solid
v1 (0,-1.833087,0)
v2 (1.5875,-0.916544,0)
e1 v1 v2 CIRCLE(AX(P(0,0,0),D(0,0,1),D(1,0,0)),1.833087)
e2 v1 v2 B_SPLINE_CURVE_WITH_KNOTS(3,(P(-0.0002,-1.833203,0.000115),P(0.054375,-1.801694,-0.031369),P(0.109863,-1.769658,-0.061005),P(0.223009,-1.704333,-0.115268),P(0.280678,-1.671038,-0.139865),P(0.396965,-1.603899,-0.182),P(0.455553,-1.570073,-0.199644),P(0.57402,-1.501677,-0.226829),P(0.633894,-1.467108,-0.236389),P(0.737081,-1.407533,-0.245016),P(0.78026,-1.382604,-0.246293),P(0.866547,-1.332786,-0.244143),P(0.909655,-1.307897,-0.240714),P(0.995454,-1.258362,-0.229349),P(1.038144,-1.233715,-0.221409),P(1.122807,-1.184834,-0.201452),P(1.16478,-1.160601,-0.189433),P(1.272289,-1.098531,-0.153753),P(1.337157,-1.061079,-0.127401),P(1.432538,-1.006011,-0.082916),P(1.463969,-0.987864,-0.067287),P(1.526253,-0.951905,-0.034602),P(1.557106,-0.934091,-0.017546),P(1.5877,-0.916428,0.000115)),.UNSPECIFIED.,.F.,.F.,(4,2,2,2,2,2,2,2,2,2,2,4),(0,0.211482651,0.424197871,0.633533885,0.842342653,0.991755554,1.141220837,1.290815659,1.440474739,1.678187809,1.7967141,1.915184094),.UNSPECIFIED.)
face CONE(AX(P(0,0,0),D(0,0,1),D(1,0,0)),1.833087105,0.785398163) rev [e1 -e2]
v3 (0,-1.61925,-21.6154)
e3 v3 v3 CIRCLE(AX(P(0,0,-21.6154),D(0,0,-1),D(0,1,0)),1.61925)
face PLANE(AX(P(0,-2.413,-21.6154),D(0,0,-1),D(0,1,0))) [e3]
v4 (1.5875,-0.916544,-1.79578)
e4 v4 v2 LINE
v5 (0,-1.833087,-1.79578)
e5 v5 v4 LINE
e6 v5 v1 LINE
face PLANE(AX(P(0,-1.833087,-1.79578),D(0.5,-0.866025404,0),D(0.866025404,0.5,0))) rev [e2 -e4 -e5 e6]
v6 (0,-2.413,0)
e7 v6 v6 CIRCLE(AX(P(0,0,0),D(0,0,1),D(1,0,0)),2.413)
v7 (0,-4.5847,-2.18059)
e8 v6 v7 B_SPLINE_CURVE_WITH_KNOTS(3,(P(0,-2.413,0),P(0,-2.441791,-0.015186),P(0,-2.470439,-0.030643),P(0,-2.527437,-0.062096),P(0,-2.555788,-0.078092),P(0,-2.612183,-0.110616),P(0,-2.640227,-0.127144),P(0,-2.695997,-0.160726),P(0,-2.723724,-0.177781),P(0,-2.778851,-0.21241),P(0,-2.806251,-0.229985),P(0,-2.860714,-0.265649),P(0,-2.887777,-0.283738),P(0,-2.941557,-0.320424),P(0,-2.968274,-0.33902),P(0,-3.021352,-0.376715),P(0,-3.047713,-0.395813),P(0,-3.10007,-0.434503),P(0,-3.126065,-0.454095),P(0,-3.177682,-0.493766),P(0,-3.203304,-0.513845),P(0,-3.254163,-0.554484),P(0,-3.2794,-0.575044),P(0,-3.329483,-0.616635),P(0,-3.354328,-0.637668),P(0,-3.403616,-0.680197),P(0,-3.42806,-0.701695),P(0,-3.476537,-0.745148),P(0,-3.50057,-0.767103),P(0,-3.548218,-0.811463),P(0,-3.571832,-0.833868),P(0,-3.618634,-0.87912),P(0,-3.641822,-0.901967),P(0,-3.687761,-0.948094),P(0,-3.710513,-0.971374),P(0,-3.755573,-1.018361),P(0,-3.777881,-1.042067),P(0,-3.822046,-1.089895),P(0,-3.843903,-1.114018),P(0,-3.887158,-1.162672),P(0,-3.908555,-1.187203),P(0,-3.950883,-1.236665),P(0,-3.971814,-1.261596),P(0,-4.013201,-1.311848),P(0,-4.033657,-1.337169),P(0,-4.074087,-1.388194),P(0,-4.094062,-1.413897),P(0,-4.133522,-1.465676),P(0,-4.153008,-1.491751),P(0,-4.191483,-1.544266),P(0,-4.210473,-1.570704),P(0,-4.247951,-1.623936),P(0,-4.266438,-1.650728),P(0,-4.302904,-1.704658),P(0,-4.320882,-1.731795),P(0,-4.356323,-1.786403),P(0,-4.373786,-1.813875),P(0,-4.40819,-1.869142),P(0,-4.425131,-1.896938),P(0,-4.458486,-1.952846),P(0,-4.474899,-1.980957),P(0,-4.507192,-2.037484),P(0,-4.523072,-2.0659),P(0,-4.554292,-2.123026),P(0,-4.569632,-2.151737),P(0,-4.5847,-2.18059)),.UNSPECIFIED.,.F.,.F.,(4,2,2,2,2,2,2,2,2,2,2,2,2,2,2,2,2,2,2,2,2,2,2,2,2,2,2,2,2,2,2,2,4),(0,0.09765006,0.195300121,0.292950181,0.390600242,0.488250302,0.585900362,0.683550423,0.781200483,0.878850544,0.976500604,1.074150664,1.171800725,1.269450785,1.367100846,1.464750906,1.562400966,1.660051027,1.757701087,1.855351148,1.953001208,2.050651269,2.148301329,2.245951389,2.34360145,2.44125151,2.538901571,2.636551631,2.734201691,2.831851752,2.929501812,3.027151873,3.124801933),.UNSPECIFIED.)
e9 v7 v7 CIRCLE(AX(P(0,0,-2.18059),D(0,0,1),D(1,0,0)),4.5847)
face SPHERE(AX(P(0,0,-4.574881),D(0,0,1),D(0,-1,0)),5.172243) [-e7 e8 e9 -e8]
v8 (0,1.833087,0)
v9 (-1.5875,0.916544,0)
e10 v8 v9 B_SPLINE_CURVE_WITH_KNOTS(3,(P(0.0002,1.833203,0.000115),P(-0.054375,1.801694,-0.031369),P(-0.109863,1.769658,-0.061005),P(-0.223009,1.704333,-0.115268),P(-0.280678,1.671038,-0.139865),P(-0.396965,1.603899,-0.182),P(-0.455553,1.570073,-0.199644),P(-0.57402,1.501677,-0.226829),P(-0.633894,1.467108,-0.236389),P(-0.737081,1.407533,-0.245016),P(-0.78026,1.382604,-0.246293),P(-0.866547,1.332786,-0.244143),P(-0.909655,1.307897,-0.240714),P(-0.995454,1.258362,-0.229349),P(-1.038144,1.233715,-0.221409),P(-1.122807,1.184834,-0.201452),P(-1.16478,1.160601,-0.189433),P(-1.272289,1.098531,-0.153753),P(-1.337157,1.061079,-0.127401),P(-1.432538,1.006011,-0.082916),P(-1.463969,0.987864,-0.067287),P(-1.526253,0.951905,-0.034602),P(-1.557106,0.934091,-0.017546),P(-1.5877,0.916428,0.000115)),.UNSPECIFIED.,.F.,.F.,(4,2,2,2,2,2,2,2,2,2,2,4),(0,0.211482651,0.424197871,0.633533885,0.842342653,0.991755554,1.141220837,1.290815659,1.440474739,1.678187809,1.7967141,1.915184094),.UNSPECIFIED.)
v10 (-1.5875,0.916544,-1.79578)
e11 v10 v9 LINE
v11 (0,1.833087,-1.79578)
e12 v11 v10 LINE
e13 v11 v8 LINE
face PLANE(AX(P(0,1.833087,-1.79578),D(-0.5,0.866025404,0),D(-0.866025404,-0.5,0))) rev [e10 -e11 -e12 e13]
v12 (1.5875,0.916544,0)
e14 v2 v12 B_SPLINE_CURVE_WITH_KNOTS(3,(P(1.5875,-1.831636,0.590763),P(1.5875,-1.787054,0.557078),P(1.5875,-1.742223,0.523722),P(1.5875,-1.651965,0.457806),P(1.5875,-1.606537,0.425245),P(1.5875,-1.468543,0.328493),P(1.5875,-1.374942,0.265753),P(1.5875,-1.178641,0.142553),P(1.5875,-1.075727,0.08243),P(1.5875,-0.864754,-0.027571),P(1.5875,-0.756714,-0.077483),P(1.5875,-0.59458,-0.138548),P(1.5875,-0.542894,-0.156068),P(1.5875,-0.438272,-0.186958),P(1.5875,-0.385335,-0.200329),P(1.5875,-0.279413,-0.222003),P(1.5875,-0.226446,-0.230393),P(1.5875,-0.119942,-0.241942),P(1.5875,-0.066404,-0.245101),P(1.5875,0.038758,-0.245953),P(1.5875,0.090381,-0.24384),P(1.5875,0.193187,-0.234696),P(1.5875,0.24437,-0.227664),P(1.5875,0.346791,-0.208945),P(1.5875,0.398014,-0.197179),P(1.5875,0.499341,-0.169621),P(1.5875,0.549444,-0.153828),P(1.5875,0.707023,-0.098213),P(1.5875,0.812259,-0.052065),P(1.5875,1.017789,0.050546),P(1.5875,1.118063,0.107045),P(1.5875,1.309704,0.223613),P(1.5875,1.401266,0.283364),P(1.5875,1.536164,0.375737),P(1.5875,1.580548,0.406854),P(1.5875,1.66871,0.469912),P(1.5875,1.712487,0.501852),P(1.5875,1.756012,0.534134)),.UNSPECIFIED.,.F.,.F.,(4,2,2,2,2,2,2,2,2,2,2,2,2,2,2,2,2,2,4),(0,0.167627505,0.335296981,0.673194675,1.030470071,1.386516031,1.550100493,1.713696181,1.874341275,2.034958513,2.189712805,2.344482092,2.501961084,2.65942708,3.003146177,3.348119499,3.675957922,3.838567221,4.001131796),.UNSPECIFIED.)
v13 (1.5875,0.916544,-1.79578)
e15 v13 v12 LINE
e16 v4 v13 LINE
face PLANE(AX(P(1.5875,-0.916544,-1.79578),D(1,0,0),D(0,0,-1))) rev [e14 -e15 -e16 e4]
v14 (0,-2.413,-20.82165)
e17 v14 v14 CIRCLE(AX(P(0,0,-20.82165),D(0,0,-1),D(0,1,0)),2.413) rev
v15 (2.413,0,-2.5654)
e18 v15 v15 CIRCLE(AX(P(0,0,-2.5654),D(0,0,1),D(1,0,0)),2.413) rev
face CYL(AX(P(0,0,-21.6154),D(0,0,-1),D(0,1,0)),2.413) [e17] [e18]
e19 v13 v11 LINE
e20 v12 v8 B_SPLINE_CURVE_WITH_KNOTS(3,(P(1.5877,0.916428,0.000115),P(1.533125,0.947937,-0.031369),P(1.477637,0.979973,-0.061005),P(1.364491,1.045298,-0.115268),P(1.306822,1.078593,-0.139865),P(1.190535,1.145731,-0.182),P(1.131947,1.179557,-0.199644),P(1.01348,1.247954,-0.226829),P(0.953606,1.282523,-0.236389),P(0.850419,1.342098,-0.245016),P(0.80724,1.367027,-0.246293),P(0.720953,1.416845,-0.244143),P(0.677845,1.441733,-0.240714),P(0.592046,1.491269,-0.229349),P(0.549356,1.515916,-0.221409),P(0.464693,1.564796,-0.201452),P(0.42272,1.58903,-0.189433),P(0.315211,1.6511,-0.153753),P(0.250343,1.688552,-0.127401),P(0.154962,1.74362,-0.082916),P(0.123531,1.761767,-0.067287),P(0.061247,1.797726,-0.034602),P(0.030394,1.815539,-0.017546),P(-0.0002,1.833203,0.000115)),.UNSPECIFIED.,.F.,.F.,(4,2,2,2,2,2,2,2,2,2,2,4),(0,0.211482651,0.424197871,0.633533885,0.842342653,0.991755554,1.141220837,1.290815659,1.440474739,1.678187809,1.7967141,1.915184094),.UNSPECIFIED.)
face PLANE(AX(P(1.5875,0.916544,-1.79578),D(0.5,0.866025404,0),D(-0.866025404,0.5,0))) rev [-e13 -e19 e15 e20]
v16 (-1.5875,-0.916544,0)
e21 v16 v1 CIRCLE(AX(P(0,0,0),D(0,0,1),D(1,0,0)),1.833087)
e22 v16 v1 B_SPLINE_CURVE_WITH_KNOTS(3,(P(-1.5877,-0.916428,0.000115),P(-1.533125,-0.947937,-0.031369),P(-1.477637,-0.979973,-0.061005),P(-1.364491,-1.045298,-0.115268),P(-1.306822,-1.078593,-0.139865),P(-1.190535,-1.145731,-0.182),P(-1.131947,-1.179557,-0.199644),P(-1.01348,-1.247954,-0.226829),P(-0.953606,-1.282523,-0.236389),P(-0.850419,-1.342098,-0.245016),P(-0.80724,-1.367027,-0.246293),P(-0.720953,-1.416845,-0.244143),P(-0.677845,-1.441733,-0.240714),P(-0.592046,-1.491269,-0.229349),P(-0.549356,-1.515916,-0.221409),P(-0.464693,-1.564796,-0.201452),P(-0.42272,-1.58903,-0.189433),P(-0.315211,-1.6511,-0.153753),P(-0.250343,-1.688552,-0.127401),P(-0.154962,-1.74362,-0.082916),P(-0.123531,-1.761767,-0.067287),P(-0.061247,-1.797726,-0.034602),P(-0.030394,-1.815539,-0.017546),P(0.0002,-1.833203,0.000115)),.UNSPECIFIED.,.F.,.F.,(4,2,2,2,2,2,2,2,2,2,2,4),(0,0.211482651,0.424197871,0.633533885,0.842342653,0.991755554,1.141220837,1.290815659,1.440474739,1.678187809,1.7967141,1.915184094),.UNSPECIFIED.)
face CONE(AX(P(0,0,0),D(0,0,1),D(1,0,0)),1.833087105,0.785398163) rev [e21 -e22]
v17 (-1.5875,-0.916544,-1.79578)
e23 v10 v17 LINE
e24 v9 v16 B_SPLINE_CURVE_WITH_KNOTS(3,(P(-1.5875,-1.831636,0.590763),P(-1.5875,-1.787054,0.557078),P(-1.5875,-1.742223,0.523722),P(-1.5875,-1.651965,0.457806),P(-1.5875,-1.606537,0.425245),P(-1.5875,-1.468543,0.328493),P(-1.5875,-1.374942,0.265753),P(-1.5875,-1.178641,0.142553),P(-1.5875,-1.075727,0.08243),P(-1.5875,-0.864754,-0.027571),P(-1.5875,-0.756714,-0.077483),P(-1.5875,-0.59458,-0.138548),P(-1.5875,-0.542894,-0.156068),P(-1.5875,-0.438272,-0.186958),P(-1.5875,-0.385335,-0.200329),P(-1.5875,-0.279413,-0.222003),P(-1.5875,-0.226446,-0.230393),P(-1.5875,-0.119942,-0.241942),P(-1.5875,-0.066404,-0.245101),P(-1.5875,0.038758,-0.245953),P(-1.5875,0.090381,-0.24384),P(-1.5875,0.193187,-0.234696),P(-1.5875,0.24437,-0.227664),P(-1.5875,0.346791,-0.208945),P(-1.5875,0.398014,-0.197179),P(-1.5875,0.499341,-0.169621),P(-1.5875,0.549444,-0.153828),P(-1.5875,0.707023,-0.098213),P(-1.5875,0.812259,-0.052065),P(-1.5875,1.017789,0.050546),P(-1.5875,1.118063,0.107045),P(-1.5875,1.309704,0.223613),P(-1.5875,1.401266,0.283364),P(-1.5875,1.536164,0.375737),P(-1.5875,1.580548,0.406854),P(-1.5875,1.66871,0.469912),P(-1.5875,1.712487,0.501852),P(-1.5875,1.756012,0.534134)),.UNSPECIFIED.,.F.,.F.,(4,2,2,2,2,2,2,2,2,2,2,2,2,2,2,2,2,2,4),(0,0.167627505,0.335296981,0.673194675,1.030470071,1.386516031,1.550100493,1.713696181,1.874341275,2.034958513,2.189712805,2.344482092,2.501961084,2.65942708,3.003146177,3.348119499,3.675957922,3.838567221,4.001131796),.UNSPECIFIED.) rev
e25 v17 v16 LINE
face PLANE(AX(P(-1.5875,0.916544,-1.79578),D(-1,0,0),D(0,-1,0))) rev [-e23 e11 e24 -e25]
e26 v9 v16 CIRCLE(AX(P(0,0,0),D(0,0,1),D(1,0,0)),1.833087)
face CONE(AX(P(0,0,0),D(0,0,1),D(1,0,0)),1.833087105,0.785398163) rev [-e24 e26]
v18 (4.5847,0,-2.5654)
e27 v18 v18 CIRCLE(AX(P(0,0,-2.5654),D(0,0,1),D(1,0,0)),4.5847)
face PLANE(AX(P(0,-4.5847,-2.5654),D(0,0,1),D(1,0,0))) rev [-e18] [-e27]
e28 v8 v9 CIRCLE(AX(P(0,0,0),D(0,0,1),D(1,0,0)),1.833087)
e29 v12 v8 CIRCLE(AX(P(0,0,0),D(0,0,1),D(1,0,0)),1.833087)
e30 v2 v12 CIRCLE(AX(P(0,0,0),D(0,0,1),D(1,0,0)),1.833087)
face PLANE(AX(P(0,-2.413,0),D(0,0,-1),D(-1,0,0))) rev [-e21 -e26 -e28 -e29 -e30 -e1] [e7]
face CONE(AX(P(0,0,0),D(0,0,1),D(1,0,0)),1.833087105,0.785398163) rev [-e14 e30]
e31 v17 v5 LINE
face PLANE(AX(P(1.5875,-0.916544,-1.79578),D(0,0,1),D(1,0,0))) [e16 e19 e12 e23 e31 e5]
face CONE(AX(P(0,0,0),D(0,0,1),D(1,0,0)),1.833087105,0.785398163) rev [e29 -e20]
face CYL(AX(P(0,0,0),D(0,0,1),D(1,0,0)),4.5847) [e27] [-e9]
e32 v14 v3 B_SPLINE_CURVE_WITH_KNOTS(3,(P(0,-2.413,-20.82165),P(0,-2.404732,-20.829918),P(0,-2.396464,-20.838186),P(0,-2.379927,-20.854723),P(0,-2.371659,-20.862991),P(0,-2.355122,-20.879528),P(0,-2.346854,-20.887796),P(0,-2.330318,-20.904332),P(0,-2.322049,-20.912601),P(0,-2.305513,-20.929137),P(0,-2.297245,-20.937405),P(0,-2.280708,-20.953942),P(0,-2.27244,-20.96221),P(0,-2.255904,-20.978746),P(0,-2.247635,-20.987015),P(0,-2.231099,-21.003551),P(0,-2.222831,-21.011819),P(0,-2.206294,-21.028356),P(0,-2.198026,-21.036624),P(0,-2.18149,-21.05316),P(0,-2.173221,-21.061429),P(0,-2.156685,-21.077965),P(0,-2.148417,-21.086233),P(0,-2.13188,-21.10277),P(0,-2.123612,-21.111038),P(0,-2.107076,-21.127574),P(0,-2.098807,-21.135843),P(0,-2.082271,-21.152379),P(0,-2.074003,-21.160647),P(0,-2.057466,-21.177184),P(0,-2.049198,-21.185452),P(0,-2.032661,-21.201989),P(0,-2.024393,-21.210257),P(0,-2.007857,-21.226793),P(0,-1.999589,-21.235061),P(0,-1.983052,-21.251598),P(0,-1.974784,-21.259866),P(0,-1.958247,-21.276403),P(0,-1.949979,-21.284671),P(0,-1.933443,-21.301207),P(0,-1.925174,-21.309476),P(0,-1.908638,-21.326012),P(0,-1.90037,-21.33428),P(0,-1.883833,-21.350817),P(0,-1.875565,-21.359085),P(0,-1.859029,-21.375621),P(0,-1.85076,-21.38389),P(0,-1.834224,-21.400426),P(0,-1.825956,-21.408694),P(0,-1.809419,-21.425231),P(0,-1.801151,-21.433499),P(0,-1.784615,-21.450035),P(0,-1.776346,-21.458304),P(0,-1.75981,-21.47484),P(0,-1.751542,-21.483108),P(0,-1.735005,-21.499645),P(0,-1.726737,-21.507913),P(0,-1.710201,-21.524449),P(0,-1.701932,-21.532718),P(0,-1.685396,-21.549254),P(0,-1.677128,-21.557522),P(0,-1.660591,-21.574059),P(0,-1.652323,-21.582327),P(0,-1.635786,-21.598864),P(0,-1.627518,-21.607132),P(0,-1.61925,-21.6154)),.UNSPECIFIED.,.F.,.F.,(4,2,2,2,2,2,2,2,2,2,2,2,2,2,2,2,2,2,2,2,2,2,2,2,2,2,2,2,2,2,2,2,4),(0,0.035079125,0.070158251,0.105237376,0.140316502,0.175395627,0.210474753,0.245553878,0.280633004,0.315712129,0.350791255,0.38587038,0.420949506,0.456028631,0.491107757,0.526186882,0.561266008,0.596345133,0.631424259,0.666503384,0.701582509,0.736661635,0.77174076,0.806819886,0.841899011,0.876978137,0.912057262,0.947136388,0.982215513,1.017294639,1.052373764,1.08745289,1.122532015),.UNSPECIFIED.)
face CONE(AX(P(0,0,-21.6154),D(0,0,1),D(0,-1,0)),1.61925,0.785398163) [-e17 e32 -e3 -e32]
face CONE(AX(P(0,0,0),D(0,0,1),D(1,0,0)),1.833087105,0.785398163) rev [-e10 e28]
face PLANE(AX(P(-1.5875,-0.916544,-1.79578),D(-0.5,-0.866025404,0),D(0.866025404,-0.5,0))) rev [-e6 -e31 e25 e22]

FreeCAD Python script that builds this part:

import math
import FreeCAD as App
import Part
import Sketcher
Q = App.Units.Quantity


def edges_at(feature, points):
    """Names of the edges that pass closest to the given points."""
    edges = feature.Shape.Edges
    near = lambda p: min(range(len(edges)), key=lambda i: edges[i].distToShape(Part.Vertex(*p))[0])
    return sorted({f"Edge{near(p) + 1}" for p in points})


def add_polygon(sketch, points):
    """Adds a closed chain of lines whose ends are joined by coincident constraints."""
    first, n = sketch.GeometryCount, len(points)
    for a, b in zip(points, points[1:] + points[:1]):
        sketch.addGeometry(Part.LineSegment(App.Vector(*a, 0), App.Vector(*b, 0)), False)
    for i in range(n):
        sketch.addConstraint(Sketcher.Constraint("Coincident", first + i, 2, first + (i + 1) % n, 1))

doc = App.newDocument("Part")
body = doc.addObject("PartDesign::Body", "Body")

sketch1 = doc.addObject("Sketcher::SketchObject", "Sketch")
body.addObject(sketch1)
sketch1.AttachmentSupport = (doc.YZ_Plane, [""])
sketch1.MapMode = "FlatFace"
add_polygon(sketch1, [(2.4, -2.6), (0, -2.6), (0, -21.6), (2.4, -21.6)])
sketch1.addConstraint([
    Sketcher.Constraint("Horizontal", 0),
    Sketcher.Constraint("Vertical", 1),
    Sketcher.Constraint("Horizontal", 2),
    Sketcher.Constraint("Vertical", 3),
    Sketcher.Constraint("PointOnObject", 0, 2, -2),
    Sketcher.Constraint("DistanceY", 1, 2, 1, 1, Q("0.75 in")),
    Sketcher.Constraint("DistanceX", 0, 2, 0, 1, Q("0.095 in")),
    Sketcher.Constraint("DistanceY", 0, 2, -1, 1, Q("0.101 in")),
])
revolution = doc.addObject("PartDesign::Revolution", "Revolution")
body.addObject(revolution)
revolution.Profile = sketch1
revolution.ReferenceAxis = (sketch1, ["V_Axis"])
revolution.Angle = 360
doc.recompute()

chamfer = doc.addObject("PartDesign::Chamfer", "Chamfer")
body.addObject(chamfer)
chamfer.Base = (revolution, edges_at(revolution, [(0, -2.413, -21.615)]))
chamfer.Size = Q("0.03125 in")

sketch2 = doc.addObject("Sketcher::SketchObject", "Sketch001")
body.addObject(sketch2)
sketch2.AttachmentSupport = (doc.YZ_Plane, [""])
sketch2.MapMode = "FlatFace"
sketch2.addGeometry([
    Part.LineSegment(App.Vector(4.58, -2.57, 0), App.Vector(4.58, -2.18, 0)),
    Part.ArcOfCircle(Part.Circle(App.Vector(0, -4.57, 0), App.Vector(0, 0, 1), 5.17), math.radians(28), math.radians(62)),
    Part.LineSegment(App.Vector(2.41, 0, 0), App.Vector(0, 0, 0)),
    Part.LineSegment(App.Vector(0, 0, 0), App.Vector(0, -2.57, 0)),
    Part.LineSegment(App.Vector(0, -2.57, 0), App.Vector(4.58, -2.57, 0)),
], False)
sketch2.addConstraint([
    Sketcher.Constraint("Coincident", 0, 2, 1, 1),
    Sketcher.Constraint("Coincident", 1, 2, 2, 1),
    Sketcher.Constraint("Coincident", 2, 2, 3, 1),
    Sketcher.Constraint("Coincident", 3, 2, 4, 1),
    Sketcher.Constraint("Coincident", 4, 2, 0, 1),
    Sketcher.Constraint("Vertical", 0),
    Sketcher.Constraint("Horizontal", 2),
    Sketcher.Constraint("Vertical", 3),
    Sketcher.Constraint("Horizontal", 4),
    Sketcher.Constraint("Coincident", 2, 2, -1, 1),
    Sketcher.Constraint("PointOnObject", 1, 3, -2),
    Sketcher.Constraint("DistanceX", 2, 2, 2, 1, Q("0.095 in")),
    Sketcher.Constraint("DistanceY", 3, 2, 3, 1, Q("0.101 in")),
    Sketcher.Constraint("DistanceX", 4, 1, 4, 2, Q("0.1805 in")),
    Sketcher.Constraint("Radius", 1, 5.172243),
])
revolution2 = doc.addObject("PartDesign::Revolution", "Revolution001")
body.addObject(revolution2)
revolution2.Profile = sketch2
revolution2.ReferenceAxis = (sketch2, ["V_Axis"])
revolution2.Angle = 360

sketch3 = doc.addObject("Sketcher::SketchObject", "Sketch002")
body.addObject(sketch3)
sketch3.AttachmentSupport = (doc.XY_Plane, [""])
sketch3.MapMode = "FlatFace"
add_polygon(sketch3, [(1.6, -0.9), (1.6, 0.9), (0, 1.8), (-1.6, 0.9), (-1.6, -0.9), (0, -1.8)])
sketch3.addConstraint([
    Sketcher.Constraint("Vertical", 0),
    Sketcher.Constraint("Vertical", 3),
    Sketcher.Constraint("Symmetric", 0, 2, 3, 2, -1, 1),
    Sketcher.Constraint("Symmetric", 1, 2, 4, 2, -1, 1),
    Sketcher.Constraint("PointOnObject", 1, 2, -2),
    Sketcher.Constraint("Parallel", 2, 5),
    Sketcher.Constraint("Horizontal", 0, 2, 2, 2),
    Sketcher.Constraint("Angle", 1, Q("150 deg")),
    Sketcher.Constraint("DistanceX", -1, 1, 0, 2, Q("0.0625 in")),
    Sketcher.Constraint("DistanceY", 0, 1, 0, 2, 1.833087),
])
pocket1 = doc.addObject("PartDesign::Pocket", "Pocket")
body.addObject(pocket1)
pocket1.Profile = sketch3
pocket1.Length = Q("0.0707 in")

sketch4 = doc.addObject("Sketcher::SketchObject", "Sketch003")
body.addObject(sketch4)
sketch4.AttachmentSupport = (doc.XY_Plane, [""])
sketch4.MapMode = "FlatFace"
sketch4.addGeometry(Part.Circle(App.Vector(0, 0, 0), App.Vector(0, 0, 1), 1.8), False)
sketch4.addConstraint([
    Sketcher.Constraint("Coincident", 0, 3, -1, 1),
    Sketcher.Constraint("Diameter", 0, 3.666174),
])
pocket2 = doc.addObject("PartDesign::Pocket", "Pocket001")
body.addObject(pocket2)
pocket2.Profile = sketch4
pocket2.Length = Q("0.0707 in")
pocket2.TaperAngle = -45

doc.recompute()
